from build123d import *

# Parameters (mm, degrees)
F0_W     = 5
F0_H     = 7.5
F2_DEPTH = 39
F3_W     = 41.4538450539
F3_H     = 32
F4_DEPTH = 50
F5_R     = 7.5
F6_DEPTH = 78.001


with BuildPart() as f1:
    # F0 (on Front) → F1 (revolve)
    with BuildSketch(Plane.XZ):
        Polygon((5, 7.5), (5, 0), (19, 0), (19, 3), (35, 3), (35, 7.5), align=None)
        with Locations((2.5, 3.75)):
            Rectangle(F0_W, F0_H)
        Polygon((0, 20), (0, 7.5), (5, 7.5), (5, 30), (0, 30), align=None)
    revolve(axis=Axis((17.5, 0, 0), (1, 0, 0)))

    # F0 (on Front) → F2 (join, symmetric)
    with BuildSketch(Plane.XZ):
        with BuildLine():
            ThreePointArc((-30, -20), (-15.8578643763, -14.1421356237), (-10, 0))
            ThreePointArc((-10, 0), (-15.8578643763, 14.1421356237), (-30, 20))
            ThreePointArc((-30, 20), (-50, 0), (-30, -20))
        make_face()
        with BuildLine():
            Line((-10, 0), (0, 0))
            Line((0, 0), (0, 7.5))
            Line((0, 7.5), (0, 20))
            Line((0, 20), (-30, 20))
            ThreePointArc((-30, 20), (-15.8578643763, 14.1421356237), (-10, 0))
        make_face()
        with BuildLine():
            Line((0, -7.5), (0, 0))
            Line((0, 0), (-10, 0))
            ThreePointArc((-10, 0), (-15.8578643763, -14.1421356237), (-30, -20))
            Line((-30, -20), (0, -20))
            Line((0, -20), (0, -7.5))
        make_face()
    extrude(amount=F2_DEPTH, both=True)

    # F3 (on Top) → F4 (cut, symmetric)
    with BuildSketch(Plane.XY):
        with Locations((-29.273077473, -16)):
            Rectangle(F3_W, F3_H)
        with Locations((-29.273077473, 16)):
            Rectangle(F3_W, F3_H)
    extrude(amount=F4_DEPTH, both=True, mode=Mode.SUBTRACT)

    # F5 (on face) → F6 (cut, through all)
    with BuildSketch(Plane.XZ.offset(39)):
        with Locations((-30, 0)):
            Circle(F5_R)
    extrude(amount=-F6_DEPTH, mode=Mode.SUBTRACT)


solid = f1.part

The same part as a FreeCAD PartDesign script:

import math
import FreeCAD as App
import Part
import Sketcher

doc = App.newDocument("Part")
params = doc.addObject("Spreadsheet::Sheet", "Params")
for row, (alias, value) in enumerate([
    ("sketch1_width", "16 mm"),
    ("sketch1_width2", "30 mm"),
    ("sketch1_width3", "5 mm"),
    ("sketch1_height", "3 mm"),
    ("sketch1_height2", "4.5 mm"),
    ("revolution_angle", "360 deg"),
    ("sketch2_radius", "20 mm"),
    ("sketch2_width", "30 mm"),
    ("pad1_length", "78 mm"),
    ("sketch3_height", "64 mm"),
    ("pocket1_length", "100 mm"),
    ("sketch4_diameter", "15 mm"),
], start=1):
    params.set(f"A{row}", alias)
    params.set(f"B{row}", "=" + value)
    params.setAlias(f"B{row}", alias)

body = doc.addObject("PartDesign::Body", "Body")

sketch1 = body.newObject("Sketcher::SketchObject", "Sketch")
sketch1.AttachmentSupport = (doc.getObject("XZ_Plane"), [""])
sketch1.MapMode = "FlatFace"
sketch1.addGeometry(Part.LineSegment(App.Vector(19, 0, 0), App.Vector(19, 3, 0)), False)
sketch1.addGeometry(Part.LineSegment(App.Vector(19, 3, 0), App.Vector(35, 3, 0)), False)
sketch1.addGeometry(Part.LineSegment(App.Vector(35, 3, 0), App.Vector(35, 7.5, 0)), False)
sketch1.addGeometry(Part.LineSegment(App.Vector(35, 7.5, 0), App.Vector(5, 7.5, 0)), False)
sketch1.addGeometry(Part.LineSegment(App.Vector(5, 7.5, 0), App.Vector(5, 30, 0)), False)
sketch1.addGeometry(Part.LineSegment(App.Vector(5, 30, 0), App.Vector(0, 30, 0)), False)
sketch1.addGeometry(Part.LineSegment(App.Vector(0, 30, 0), App.Vector(0, 0, 0)), False)
sketch1.addGeometry(Part.LineSegment(App.Vector(0, 0, 0), App.Vector(19, 0, 0)), False)
sketch1.addConstraint(Sketcher.Constraint("Coincident", 0, 2, 1, 1))
sketch1.addConstraint(Sketcher.Constraint("Coincident", 1, 2, 2, 1))
sketch1.addConstraint(Sketcher.Constraint("Coincident", 2, 2, 3, 1))
sketch1.addConstraint(Sketcher.Constraint("Coincident", 3, 2, 4, 1))
sketch1.addConstraint(Sketcher.Constraint("Coincident", 4, 2, 5, 1))
sketch1.addConstraint(Sketcher.Constraint("Coincident", 5, 2, 6, 1))
sketch1.addConstraint(Sketcher.Constraint("Coincident", 6, 2, 7, 1))
sketch1.addConstraint(Sketcher.Constraint("Coincident", 7, 2, 0, 1))
sketch1.addConstraint(Sketcher.Constraint("Vertical", 0))
sketch1.addConstraint(Sketcher.Constraint("Horizontal", 1))
sketch1.addConstraint(Sketcher.Constraint("Vertical", 2))
sketch1.addConstraint(Sketcher.Constraint("Horizontal", 3))
sketch1.addConstraint(Sketcher.Constraint("Vertical", 4))
sketch1.addConstraint(Sketcher.Constraint("Horizontal", 5))
sketch1.addConstraint(Sketcher.Constraint("Vertical", 6))
sketch1.addConstraint(Sketcher.Constraint("Horizontal", 7))
sketch1.addConstraint(Sketcher.Constraint("Coincident", 6, 2, -1, 1))
sketch1.addConstraint(Sketcher.Constraint("Equal", 3, 6))
sketch1.addConstraint(Sketcher.Constraint("DistanceX", 1, 1, 1, 2, 16.0))
sketch1.addConstraint(Sketcher.Constraint("DistanceX", 3, 2, 3, 1, 30.0))
sketch1.addConstraint(Sketcher.Constraint("DistanceX", 5, 2, 5, 1, 5.0))
sketch1.addConstraint(Sketcher.Constraint("DistanceY", 0, 1, 0, 2, 3.0))
sketch1.addConstraint(Sketcher.Constraint("DistanceY", 2, 1, 2, 2, 4.5))
sketch1.setExpression("Constraints[18]", "Params.sketch1_width")
sketch1.setExpression("Constraints[19]", "Params.sketch1_width2")
sketch1.setExpression("Constraints[20]", "Params.sketch1_width3")
sketch1.setExpression("Constraints[21]", "Params.sketch1_height")
sketch1.setExpression("Constraints[22]", "Params.sketch1_height2")
revolution = body.newObject("PartDesign::Revolution", "Revolution")
revolution.Profile = sketch1
revolution.ReferenceAxis = (sketch1, ["H_Axis"])
revolution.setExpression("Angle", "Params.revolution_angle")

sketch2 = body.newObject("Sketcher::SketchObject", "Sketch001")
sketch2.AttachmentSupport = (doc.getObject("XZ_Plane"), [""])
sketch2.MapMode = "FlatFace"
sketch2.addGeometry(Part.LineSegment(App.Vector(0, 20, 0), App.Vector(-30, 20, 0)), False)
sketch2.addGeometry(Part.ArcOfCircle(Part.Circle(App.Vector(-30, 0, 0), App.Vector(0, 0, 1), 20), math.radians(90), math.radians(270)), False)
sketch2.addGeometry(Part.LineSegment(App.Vector(-30, -20, 0), App.Vector(0, -20, 0)), False)
sketch2.addGeometry(Part.LineSegment(App.Vector(0, -20, 0), App.Vector(0, 20, 0)), False)
sketch2.addConstraint(Sketcher.Constraint("Tangent", 0, 2, 1, 1))
sketch2.addConstraint(Sketcher.Constraint("Tangent", 1, 2, 2, 1))
sketch2.addConstraint(Sketcher.Constraint("Coincident", 2, 2, 3, 1))
sketch2.addConstraint(Sketcher.Constraint("Coincident", 3, 2, 0, 1))
sketch2.addConstraint(Sketcher.Constraint("Horizontal", 0))
sketch2.addConstraint(Sketcher.Constraint("Horizontal", 2))
sketch2.addConstraint(Sketcher.Constraint("Vertical", 3))
sketch2.addConstraint(Sketcher.Constraint("Symmetric", 2, 2, 3, 2, -1, 1))
sketch2.addConstraint(Sketcher.Constraint("Radius", 1, 20.0))
sketch2.addConstraint(Sketcher.Constraint("DistanceX", 0, 2, 0, 1, 30.0))
sketch2.setExpression("Constraints[8]", "Params.sketch2_radius")
sketch2.setExpression("Constraints[9]", "Params.sketch2_width")
pad1 = body.newObject("PartDesign::Pad", "Pad")
pad1.Profile = sketch2
pad1.setExpression("Length", "Params.pad1_length")
pad1.Midplane = True

sketch3 = body.newObject("Sketcher::SketchObject", "Sketch002")
sketch3.AttachmentSupport = (doc.getObject("XY_Plane"), [""])
sketch3.MapMode = "FlatFace"
sketch3.addGeometry(Part.LineSegment(App.Vector(-50, -32, 0), App.Vector(-9, -32, 0)), False)
sketch3.addGeometry(Part.LineSegment(App.Vector(-9, -32, 0), App.Vector(-9, 32, 0)), False)
sketch3.addGeometry(Part.LineSegment(App.Vector(-9, 32, 0), App.Vector(-50, 32, 0)), False)
sketch3.addGeometry(Part.LineSegment(App.Vector(-50, 32, 0), App.Vector(-50, -32, 0)), False)
sketch3.addConstraint(Sketcher.Constraint("Coincident", 0, 2, 1, 1))
sketch3.addConstraint(Sketcher.Constraint("Coincident", 1, 2, 2, 1))
sketch3.addConstraint(Sketcher.Constraint("Coincident", 2, 2, 3, 1))
sketch3.addConstraint(Sketcher.Constraint("Coincident", 3, 2, 0, 1))
sketch3.addConstraint(Sketcher.Constraint("Horizontal", 0))
sketch3.addConstraint(Sketcher.Constraint("Vertical", 1))
sketch3.addConstraint(Sketcher.Constraint("Horizontal", 2))
sketch3.addConstraint(Sketcher.Constraint("Vertical", 3))
sketch3.addConstraint(Sketcher.Constraint("DistanceY", 1, 1, 1, 2, 64.0))
sketch3.addConstraint(Sketcher.Constraint("DistanceY", 0, 2, -1, 1, 32.0))
sketch3.addConstraint(Sketcher.Constraint("DistanceX", 2, 2, -1, 1, 50.0))
sketch3.addConstraint(Sketcher.Constraint("DistanceX", 0, 1, 0, 2, 41.453845))
sketch3.setExpression("Constraints[8]", "Params.sketch3_height")
pocket1 = body.newObject("PartDesign::Pocket", "Pocket")
pocket1.Profile = sketch3
pocket1.setExpression("Length", "Params.pocket1_length")
pocket1.Midplane = True

sketch4 = body.newObject("Sketcher::SketchObject", "Sketch003")
sketch4.AttachmentSupport = (doc.getObject("XZ_Plane"), [""])
sketch4.MapMode = "FlatFace"
sketch4.AttachmentOffset = App.Placement(App.Vector(0, 0, 39), App.Rotation())
sketch4.addGeometry(Part.Circle(App.Vector(-30, 0, 0), App.Vector(0, 0, 1), 8), False)
sketch4.addConstraint(Sketcher.Constraint("PointOnObject", 0, 3, -1))
sketch4.addConstraint(Sketcher.Constraint("Diameter", 0, 15.0))
sketch4.addConstraint(Sketcher.Constraint("DistanceX", 0, 3, -1, 1, 30.0))
sketch4.setExpression("Constraints[1]", "Params.sketch4_diameter")
pocket2 = body.newObject("PartDesign::Pocket", "Pocket001")
pocket2.Profile = sketch4
pocket2.Type = "ThroughAll"

doc.recompute()
